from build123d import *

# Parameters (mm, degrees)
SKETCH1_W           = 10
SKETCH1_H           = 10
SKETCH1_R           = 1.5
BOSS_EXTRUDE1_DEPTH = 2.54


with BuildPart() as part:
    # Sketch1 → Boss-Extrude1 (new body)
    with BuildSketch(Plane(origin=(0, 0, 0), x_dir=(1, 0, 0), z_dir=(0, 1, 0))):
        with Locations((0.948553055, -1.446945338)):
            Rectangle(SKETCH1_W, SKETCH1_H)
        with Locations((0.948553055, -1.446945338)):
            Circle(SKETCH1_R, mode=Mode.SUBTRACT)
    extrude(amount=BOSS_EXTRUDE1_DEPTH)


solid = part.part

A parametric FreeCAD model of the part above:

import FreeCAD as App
import Part
import Sketcher
from FreeCAD import Vector


def add_polygon(sketch, points):
    """Adds a closed chain of lines whose ends are joined by coincident constraints."""
    first, n = sketch.GeometryCount, len(points)
    for a, b in zip(points, points[1:] + points[:1]):
        sketch.addGeometry(Part.LineSegment(App.Vector(*a, 0), App.Vector(*b, 0)), False)
    for i in range(n):
        sketch.addConstraint(Sketcher.Constraint("Coincident", first + i, 2, first + (i + 1) % n, 1))

doc = App.newDocument("Part")
body = doc.addObject("PartDesign::Body", "Body")

# Sketch on XZ plane
sketch1 = body.newObject("Sketcher::SketchObject", "Sketch")
sketch1.AttachmentSupport = (doc.getObject("XZ_Plane"), [""])
sketch1.MapMode = "FlatFace"
add_polygon(sketch1, [(-4.1, -3.6), (-4.1, 6.4), (5.9, 6.4), (5.9, -3.6)])  # lines 0-3
sketch1.addGeometry(Part.Circle(Vector(0.9, 1.4, 0), Vector(0, 0, 1), 1.5), False)  # 4
sketch1.addConstraint([
    Sketcher.Constraint("Vertical", 0),
    Sketcher.Constraint("Horizontal", 1),
    Sketcher.Constraint("Vertical", 2),
    Sketcher.Constraint("Horizontal", 3),
    Sketcher.Constraint("Equal", 3, 0),
    Sketcher.Constraint("Diameter", 4, 3.0),
    Sketcher.Constraint("DistanceX", 1, 1, 1, 2, 10.0),
    Sketcher.Constraint("DistanceX", 0, 2, 4, 3, 5.0),
    Sketcher.Constraint("DistanceY", 4, 3, 0, 2, 5.0),
    Sketcher.Constraint("DistanceX", -1, 1, 4, 3, 0.948553),
    Sketcher.Constraint("DistanceY", -1, 1, 4, 3, 1.446945),
])
pad1 = body.newObject("PartDesign::Pad", "Pad")
pad1.Profile = sketch1
pad1.Length = 2.54
pad1.Reversed = True

doc.recompute()
